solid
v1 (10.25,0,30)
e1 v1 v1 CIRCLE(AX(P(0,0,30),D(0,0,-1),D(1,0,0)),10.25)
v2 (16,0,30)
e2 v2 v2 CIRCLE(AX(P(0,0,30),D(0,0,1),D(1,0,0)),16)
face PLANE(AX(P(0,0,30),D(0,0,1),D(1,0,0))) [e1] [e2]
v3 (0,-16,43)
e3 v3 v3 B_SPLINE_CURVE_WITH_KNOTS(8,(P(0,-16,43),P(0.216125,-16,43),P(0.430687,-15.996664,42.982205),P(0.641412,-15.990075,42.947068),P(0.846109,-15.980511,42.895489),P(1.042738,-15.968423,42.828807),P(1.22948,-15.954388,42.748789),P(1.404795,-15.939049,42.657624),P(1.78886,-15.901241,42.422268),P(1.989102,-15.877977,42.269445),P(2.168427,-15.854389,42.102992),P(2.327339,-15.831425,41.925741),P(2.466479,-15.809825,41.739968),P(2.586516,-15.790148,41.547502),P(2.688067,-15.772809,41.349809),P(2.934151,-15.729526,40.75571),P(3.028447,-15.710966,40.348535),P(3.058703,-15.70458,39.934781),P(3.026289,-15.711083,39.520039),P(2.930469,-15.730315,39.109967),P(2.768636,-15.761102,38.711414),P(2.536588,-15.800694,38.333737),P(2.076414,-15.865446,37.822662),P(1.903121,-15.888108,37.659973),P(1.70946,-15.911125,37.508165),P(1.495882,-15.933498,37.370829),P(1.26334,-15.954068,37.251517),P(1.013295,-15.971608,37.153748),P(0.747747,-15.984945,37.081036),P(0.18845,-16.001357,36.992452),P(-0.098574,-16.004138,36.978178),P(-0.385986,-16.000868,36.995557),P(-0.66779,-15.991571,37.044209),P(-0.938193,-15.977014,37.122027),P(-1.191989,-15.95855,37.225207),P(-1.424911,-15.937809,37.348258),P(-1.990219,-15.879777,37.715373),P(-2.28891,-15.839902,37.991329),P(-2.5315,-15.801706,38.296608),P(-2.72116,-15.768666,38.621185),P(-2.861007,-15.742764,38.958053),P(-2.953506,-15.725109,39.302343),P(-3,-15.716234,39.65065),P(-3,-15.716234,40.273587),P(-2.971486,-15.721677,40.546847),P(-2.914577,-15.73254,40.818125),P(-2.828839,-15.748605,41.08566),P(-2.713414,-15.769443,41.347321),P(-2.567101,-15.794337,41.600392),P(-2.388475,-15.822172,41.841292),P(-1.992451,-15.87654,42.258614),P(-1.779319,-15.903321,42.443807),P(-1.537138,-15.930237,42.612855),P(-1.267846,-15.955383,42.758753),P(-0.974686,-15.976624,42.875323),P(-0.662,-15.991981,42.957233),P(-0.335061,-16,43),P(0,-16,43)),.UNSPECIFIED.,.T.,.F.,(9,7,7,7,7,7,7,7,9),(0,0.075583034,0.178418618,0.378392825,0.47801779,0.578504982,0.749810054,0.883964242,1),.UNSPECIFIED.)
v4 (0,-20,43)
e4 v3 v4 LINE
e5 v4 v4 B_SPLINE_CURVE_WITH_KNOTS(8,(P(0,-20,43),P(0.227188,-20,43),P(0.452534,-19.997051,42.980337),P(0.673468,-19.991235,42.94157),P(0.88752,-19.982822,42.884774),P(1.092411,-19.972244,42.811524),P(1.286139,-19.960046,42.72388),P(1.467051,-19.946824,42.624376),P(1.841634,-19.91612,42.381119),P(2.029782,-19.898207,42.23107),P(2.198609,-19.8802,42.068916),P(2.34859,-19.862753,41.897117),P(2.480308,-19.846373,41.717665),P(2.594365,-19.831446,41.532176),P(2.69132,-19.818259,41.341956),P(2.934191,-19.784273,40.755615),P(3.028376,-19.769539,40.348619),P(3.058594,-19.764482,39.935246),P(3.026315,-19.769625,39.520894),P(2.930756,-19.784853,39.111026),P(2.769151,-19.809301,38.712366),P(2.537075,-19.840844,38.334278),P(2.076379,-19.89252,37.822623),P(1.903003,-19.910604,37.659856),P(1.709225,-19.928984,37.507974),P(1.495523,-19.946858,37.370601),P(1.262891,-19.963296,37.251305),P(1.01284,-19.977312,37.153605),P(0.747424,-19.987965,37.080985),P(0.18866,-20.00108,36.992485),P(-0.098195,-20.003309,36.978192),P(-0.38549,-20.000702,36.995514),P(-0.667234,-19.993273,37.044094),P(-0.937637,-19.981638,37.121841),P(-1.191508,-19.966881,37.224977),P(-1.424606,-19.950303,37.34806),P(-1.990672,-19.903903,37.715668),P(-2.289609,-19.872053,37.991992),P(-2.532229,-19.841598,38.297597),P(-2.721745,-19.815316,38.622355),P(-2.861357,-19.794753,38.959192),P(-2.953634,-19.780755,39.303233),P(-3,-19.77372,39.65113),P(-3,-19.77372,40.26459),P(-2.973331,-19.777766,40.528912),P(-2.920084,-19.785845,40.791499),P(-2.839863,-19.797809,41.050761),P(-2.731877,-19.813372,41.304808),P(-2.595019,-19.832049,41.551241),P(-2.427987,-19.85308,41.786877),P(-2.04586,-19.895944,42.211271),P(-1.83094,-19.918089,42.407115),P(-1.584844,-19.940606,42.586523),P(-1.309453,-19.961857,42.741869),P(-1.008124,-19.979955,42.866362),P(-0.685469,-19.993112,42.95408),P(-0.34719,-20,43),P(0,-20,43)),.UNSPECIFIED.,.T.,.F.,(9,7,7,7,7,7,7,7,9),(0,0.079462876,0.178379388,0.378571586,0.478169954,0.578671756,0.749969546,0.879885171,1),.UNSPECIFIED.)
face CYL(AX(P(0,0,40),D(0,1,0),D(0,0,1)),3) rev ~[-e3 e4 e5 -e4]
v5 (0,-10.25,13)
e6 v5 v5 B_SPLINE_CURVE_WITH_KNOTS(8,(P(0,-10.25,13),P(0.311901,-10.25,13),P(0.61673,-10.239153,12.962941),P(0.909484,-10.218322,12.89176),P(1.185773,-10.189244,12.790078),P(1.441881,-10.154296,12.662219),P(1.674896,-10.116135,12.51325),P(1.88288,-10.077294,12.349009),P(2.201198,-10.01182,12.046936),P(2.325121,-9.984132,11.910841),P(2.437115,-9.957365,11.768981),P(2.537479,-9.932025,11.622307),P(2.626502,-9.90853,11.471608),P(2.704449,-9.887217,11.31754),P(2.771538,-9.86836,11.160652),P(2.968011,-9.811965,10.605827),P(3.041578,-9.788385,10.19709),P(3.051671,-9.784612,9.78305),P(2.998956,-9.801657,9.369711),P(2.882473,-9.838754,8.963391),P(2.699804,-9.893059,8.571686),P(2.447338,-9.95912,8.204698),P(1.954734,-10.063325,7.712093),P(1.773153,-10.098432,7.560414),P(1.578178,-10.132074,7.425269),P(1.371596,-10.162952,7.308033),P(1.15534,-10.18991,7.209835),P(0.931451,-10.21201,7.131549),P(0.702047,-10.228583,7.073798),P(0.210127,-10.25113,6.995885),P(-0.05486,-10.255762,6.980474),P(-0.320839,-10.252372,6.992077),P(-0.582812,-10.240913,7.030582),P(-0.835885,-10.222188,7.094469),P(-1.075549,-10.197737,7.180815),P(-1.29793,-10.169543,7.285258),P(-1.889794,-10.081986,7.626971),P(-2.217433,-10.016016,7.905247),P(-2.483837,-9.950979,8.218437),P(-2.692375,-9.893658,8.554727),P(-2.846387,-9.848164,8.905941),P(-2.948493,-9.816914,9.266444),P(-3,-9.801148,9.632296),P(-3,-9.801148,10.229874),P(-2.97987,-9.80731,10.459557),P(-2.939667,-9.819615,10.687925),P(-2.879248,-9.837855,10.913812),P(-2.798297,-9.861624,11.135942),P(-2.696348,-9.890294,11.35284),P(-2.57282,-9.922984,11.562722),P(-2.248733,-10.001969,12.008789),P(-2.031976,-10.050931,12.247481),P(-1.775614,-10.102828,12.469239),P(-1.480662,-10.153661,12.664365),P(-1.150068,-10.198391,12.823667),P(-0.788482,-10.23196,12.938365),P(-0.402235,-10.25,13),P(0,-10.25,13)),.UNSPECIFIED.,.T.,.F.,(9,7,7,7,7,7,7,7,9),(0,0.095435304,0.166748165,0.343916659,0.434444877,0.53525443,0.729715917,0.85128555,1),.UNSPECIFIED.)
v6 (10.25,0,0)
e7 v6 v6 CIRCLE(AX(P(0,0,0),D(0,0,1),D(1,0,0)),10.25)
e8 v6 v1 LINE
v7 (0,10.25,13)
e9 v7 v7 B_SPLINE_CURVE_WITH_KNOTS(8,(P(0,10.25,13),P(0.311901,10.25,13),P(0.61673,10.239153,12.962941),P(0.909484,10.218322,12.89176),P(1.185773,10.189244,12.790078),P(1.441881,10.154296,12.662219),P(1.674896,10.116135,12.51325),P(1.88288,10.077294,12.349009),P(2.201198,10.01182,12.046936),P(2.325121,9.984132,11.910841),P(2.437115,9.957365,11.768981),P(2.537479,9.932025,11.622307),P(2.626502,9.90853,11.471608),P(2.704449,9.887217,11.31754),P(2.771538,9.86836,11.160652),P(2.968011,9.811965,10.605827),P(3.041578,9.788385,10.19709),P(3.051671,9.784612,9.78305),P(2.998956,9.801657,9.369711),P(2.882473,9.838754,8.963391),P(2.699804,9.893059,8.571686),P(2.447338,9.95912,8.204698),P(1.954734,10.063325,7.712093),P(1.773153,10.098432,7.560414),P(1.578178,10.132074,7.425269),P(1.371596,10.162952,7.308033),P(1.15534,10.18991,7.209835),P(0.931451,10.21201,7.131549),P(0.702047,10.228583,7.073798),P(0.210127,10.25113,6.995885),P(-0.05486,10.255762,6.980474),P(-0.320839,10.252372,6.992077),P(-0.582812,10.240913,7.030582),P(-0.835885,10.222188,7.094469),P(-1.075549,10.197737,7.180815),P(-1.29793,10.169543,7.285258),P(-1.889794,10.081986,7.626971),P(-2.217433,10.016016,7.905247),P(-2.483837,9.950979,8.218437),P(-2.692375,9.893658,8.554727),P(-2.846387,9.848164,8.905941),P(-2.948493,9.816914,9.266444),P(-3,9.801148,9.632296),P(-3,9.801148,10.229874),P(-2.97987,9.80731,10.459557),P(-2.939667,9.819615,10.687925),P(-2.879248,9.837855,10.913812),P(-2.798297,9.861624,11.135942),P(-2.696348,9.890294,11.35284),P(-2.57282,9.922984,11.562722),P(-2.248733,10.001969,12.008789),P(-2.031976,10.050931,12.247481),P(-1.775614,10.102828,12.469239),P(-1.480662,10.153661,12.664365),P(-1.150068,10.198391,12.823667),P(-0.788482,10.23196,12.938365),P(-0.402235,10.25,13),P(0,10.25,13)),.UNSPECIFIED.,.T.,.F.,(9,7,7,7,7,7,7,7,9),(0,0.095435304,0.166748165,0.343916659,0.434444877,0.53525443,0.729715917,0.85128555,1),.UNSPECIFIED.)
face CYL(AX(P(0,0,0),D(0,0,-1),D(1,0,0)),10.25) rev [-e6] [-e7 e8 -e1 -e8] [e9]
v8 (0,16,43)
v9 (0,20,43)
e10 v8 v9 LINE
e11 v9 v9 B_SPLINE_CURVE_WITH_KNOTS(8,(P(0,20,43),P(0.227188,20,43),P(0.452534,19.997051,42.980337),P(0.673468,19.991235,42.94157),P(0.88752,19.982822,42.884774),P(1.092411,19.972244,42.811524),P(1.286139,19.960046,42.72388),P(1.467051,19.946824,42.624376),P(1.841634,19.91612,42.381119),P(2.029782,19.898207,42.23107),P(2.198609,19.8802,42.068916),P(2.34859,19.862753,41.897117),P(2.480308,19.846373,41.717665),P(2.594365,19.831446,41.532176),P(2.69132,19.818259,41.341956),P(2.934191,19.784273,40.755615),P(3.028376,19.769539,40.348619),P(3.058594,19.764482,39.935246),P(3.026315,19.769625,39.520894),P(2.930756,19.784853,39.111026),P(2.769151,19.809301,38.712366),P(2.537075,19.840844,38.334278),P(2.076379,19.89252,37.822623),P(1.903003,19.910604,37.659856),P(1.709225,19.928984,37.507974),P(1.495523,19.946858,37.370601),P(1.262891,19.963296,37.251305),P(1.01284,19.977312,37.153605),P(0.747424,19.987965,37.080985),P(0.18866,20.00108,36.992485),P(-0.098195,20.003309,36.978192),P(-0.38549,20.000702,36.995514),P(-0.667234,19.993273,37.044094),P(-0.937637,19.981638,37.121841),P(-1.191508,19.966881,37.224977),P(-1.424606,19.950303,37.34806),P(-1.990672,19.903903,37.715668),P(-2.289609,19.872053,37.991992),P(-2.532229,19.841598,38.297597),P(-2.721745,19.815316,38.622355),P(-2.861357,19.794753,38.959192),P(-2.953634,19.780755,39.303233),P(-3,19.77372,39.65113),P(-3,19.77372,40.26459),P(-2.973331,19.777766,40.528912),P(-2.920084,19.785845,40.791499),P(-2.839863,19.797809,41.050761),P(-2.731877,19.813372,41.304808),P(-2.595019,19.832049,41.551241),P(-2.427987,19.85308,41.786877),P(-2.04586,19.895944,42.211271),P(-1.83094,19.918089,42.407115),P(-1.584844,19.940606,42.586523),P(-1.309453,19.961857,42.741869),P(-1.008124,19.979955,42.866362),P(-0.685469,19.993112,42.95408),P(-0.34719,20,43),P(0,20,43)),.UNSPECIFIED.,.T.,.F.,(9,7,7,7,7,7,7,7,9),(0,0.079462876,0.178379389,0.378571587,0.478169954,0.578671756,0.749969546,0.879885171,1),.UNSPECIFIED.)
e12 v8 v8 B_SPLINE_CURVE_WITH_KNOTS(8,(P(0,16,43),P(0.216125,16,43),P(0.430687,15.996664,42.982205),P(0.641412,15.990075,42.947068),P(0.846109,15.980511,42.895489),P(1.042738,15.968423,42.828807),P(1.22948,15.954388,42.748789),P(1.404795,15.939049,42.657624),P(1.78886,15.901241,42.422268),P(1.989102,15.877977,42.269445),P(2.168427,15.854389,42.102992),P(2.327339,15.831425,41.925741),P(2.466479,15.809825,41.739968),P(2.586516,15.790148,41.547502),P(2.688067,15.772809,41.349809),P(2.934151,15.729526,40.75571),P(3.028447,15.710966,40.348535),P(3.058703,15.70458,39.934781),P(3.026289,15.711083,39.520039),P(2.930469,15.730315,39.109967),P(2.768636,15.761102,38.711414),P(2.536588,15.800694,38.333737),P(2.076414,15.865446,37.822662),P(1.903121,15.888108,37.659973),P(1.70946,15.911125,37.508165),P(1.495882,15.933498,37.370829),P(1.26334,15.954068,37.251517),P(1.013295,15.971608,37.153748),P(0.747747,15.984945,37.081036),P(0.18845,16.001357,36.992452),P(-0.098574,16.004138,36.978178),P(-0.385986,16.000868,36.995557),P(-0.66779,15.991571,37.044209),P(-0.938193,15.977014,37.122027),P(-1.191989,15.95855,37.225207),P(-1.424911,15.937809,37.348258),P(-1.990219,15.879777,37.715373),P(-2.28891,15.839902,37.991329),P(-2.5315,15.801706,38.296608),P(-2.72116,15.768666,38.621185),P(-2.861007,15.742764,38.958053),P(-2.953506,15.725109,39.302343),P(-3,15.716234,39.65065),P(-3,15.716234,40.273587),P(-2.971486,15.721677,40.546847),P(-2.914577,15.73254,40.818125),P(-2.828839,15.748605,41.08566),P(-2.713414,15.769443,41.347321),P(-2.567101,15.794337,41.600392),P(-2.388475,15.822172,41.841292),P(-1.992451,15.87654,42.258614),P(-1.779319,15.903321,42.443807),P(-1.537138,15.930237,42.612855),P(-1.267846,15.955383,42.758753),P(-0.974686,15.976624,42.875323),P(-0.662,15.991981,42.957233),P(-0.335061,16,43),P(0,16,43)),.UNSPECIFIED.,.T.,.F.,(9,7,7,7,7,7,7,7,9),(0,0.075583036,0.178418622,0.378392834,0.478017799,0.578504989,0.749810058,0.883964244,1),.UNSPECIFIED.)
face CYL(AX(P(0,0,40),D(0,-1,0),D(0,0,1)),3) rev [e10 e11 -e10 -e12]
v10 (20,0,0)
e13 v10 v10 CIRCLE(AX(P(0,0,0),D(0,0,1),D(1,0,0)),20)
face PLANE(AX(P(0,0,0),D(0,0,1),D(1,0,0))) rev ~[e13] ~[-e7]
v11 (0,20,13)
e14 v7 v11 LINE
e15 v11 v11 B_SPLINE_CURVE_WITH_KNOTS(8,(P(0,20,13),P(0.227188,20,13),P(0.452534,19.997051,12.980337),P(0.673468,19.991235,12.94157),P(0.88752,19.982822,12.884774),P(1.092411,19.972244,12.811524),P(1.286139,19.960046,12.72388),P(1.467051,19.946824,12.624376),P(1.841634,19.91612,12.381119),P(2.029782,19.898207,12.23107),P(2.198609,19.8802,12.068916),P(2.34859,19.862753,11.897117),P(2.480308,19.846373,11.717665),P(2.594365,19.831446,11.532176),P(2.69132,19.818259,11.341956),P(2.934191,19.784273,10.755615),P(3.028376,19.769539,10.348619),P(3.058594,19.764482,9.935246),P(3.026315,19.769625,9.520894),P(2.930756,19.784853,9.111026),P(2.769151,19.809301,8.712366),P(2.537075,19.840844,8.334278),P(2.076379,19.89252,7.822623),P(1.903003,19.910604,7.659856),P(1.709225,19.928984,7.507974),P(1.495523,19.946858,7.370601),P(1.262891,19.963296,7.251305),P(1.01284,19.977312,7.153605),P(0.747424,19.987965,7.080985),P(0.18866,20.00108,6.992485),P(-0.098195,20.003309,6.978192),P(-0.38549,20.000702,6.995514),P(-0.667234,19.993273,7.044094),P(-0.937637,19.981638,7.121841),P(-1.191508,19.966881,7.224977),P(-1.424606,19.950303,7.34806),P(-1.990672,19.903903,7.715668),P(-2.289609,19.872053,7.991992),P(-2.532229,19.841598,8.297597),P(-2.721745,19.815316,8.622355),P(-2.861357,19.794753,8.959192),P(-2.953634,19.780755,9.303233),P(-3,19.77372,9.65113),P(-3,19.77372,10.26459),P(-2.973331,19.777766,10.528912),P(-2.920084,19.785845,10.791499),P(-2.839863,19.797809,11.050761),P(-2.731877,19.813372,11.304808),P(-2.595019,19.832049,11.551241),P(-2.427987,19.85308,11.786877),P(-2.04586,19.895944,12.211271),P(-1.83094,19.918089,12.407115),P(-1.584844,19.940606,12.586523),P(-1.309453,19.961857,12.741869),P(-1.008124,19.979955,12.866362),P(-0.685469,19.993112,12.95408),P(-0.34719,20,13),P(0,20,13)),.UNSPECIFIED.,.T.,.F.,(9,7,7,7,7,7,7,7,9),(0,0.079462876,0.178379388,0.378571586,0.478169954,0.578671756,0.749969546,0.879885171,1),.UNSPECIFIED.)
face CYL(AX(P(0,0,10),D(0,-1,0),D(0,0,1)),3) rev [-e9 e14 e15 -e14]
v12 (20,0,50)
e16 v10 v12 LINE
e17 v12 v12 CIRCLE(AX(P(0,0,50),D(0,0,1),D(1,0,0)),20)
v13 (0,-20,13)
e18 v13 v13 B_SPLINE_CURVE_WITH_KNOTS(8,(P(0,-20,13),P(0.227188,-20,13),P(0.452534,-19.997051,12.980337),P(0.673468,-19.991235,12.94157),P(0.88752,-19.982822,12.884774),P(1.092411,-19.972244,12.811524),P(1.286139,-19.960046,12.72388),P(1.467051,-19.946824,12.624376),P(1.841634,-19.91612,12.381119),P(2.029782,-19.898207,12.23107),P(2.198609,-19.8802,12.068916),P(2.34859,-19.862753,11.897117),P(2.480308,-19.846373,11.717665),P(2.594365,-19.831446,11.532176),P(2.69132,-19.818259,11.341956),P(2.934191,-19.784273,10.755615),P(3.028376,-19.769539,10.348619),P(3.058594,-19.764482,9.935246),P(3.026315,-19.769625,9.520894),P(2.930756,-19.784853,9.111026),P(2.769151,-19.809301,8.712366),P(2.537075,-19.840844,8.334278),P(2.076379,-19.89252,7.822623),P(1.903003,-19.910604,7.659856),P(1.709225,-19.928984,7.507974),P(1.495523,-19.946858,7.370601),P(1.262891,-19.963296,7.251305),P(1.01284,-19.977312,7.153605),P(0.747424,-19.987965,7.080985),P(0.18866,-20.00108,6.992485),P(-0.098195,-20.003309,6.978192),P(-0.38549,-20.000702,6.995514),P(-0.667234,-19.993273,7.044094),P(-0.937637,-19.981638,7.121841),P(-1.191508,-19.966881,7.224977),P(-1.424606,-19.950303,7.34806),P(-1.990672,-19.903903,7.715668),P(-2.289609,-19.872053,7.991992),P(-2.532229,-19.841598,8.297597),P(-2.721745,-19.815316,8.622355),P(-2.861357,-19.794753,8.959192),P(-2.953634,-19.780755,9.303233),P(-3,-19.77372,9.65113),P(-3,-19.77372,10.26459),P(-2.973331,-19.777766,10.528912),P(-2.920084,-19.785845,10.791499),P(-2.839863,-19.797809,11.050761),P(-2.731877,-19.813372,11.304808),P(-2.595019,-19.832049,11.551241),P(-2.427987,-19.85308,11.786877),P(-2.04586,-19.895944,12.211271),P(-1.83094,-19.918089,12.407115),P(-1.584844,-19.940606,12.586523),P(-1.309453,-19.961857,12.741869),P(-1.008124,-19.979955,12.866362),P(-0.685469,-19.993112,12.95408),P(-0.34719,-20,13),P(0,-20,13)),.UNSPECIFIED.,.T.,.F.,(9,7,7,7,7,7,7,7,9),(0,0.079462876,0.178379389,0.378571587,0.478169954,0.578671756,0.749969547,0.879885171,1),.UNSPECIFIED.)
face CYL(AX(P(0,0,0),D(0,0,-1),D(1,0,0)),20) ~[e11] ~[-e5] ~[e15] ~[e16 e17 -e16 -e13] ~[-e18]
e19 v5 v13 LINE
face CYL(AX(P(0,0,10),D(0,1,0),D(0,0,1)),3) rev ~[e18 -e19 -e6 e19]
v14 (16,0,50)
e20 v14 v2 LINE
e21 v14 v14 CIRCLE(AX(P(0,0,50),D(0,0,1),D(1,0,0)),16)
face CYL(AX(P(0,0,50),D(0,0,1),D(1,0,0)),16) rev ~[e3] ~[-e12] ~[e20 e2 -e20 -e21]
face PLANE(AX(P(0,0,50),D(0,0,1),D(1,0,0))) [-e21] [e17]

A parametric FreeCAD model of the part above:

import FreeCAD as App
import Part
import Sketcher

doc = App.newDocument("Part")
body = doc.addObject("PartDesign::Body", "Body")

sketch1 = body.newObject("Sketcher::SketchObject", "Sketch")
sketch1.AttachmentSupport = (doc.getObject("XY_Plane"), [""])
sketch1.MapMode = "FlatFace"
sketch1.addGeometry([
    Part.Circle(App.Vector(0, 0, 0), App.Vector(0, 0, 1), 20),
    Part.Circle(App.Vector(0, 0, 0), App.Vector(0, 0, 1), 10.25),
], False)
sketch1.addConstraint([
    Sketcher.Constraint("Coincident", 0, 3, -1, 1),
    Sketcher.Constraint("Coincident", 1, 3, -1, 1),
    Sketcher.Constraint("Diameter", 0, 40.0),
    Sketcher.Constraint("Diameter", 1, 20.5),
])
pad1 = body.newObject("PartDesign::Pad", "Pad")
pad1.Profile = sketch1
pad1.Length = 50

sketch2 = body.newObject("Sketcher::SketchObject", "Sketch001")
sketch2.AttachmentSupport = (doc.getObject("XY_Plane"), [""])
sketch2.MapMode = "FlatFace"
sketch2.AttachmentOffset = App.Placement(App.Vector(0, 0, 50), App.Rotation())
sketch2.addGeometry(Part.Circle(App.Vector(0, 0, 0), App.Vector(0, 0, 1), 16), False)
sketch2.addConstraint([
    Sketcher.Constraint("Coincident", 0, 3, -1, 1),
    Sketcher.Constraint("Diameter", 0, 32.0),
])
pocket1 = body.newObject("PartDesign::Pocket", "Pocket")
pocket1.Profile = sketch2
pocket1.Length = 20

sketch3 = body.newObject("Sketcher::SketchObject", "Sketch002")
sketch3.AttachmentSupport = (doc.getObject("XZ_Plane"), [""])
sketch3.MapMode = "FlatFace"
sketch3.addGeometry([
    Part.Circle(App.Vector(0, 10, 0), App.Vector(0, 0, 1), 3),
    Part.Circle(App.Vector(0, 40, 0), App.Vector(0, 0, 1), 3),
], False)
sketch3.addConstraint([
    Sketcher.Constraint("Equal", 0, 1),
    Sketcher.Constraint("PointOnObject", 0, 3, -2),
    Sketcher.Constraint("PointOnObject", 1, 3, -2),
    Sketcher.Constraint("Diameter", 0, 6.0),
    Sketcher.Constraint("DistanceY", -1, 1, 0, 3, 10.0),
    Sketcher.Constraint("DistanceY", -1, 1, 1, 3, 40.0),
])
pocket2 = body.newObject("PartDesign::Pocket", "Pocket001")
pocket2.Profile = sketch3
pocket2.Type = "ThroughAll"
pocket2.Midplane = True

doc.recompute()
